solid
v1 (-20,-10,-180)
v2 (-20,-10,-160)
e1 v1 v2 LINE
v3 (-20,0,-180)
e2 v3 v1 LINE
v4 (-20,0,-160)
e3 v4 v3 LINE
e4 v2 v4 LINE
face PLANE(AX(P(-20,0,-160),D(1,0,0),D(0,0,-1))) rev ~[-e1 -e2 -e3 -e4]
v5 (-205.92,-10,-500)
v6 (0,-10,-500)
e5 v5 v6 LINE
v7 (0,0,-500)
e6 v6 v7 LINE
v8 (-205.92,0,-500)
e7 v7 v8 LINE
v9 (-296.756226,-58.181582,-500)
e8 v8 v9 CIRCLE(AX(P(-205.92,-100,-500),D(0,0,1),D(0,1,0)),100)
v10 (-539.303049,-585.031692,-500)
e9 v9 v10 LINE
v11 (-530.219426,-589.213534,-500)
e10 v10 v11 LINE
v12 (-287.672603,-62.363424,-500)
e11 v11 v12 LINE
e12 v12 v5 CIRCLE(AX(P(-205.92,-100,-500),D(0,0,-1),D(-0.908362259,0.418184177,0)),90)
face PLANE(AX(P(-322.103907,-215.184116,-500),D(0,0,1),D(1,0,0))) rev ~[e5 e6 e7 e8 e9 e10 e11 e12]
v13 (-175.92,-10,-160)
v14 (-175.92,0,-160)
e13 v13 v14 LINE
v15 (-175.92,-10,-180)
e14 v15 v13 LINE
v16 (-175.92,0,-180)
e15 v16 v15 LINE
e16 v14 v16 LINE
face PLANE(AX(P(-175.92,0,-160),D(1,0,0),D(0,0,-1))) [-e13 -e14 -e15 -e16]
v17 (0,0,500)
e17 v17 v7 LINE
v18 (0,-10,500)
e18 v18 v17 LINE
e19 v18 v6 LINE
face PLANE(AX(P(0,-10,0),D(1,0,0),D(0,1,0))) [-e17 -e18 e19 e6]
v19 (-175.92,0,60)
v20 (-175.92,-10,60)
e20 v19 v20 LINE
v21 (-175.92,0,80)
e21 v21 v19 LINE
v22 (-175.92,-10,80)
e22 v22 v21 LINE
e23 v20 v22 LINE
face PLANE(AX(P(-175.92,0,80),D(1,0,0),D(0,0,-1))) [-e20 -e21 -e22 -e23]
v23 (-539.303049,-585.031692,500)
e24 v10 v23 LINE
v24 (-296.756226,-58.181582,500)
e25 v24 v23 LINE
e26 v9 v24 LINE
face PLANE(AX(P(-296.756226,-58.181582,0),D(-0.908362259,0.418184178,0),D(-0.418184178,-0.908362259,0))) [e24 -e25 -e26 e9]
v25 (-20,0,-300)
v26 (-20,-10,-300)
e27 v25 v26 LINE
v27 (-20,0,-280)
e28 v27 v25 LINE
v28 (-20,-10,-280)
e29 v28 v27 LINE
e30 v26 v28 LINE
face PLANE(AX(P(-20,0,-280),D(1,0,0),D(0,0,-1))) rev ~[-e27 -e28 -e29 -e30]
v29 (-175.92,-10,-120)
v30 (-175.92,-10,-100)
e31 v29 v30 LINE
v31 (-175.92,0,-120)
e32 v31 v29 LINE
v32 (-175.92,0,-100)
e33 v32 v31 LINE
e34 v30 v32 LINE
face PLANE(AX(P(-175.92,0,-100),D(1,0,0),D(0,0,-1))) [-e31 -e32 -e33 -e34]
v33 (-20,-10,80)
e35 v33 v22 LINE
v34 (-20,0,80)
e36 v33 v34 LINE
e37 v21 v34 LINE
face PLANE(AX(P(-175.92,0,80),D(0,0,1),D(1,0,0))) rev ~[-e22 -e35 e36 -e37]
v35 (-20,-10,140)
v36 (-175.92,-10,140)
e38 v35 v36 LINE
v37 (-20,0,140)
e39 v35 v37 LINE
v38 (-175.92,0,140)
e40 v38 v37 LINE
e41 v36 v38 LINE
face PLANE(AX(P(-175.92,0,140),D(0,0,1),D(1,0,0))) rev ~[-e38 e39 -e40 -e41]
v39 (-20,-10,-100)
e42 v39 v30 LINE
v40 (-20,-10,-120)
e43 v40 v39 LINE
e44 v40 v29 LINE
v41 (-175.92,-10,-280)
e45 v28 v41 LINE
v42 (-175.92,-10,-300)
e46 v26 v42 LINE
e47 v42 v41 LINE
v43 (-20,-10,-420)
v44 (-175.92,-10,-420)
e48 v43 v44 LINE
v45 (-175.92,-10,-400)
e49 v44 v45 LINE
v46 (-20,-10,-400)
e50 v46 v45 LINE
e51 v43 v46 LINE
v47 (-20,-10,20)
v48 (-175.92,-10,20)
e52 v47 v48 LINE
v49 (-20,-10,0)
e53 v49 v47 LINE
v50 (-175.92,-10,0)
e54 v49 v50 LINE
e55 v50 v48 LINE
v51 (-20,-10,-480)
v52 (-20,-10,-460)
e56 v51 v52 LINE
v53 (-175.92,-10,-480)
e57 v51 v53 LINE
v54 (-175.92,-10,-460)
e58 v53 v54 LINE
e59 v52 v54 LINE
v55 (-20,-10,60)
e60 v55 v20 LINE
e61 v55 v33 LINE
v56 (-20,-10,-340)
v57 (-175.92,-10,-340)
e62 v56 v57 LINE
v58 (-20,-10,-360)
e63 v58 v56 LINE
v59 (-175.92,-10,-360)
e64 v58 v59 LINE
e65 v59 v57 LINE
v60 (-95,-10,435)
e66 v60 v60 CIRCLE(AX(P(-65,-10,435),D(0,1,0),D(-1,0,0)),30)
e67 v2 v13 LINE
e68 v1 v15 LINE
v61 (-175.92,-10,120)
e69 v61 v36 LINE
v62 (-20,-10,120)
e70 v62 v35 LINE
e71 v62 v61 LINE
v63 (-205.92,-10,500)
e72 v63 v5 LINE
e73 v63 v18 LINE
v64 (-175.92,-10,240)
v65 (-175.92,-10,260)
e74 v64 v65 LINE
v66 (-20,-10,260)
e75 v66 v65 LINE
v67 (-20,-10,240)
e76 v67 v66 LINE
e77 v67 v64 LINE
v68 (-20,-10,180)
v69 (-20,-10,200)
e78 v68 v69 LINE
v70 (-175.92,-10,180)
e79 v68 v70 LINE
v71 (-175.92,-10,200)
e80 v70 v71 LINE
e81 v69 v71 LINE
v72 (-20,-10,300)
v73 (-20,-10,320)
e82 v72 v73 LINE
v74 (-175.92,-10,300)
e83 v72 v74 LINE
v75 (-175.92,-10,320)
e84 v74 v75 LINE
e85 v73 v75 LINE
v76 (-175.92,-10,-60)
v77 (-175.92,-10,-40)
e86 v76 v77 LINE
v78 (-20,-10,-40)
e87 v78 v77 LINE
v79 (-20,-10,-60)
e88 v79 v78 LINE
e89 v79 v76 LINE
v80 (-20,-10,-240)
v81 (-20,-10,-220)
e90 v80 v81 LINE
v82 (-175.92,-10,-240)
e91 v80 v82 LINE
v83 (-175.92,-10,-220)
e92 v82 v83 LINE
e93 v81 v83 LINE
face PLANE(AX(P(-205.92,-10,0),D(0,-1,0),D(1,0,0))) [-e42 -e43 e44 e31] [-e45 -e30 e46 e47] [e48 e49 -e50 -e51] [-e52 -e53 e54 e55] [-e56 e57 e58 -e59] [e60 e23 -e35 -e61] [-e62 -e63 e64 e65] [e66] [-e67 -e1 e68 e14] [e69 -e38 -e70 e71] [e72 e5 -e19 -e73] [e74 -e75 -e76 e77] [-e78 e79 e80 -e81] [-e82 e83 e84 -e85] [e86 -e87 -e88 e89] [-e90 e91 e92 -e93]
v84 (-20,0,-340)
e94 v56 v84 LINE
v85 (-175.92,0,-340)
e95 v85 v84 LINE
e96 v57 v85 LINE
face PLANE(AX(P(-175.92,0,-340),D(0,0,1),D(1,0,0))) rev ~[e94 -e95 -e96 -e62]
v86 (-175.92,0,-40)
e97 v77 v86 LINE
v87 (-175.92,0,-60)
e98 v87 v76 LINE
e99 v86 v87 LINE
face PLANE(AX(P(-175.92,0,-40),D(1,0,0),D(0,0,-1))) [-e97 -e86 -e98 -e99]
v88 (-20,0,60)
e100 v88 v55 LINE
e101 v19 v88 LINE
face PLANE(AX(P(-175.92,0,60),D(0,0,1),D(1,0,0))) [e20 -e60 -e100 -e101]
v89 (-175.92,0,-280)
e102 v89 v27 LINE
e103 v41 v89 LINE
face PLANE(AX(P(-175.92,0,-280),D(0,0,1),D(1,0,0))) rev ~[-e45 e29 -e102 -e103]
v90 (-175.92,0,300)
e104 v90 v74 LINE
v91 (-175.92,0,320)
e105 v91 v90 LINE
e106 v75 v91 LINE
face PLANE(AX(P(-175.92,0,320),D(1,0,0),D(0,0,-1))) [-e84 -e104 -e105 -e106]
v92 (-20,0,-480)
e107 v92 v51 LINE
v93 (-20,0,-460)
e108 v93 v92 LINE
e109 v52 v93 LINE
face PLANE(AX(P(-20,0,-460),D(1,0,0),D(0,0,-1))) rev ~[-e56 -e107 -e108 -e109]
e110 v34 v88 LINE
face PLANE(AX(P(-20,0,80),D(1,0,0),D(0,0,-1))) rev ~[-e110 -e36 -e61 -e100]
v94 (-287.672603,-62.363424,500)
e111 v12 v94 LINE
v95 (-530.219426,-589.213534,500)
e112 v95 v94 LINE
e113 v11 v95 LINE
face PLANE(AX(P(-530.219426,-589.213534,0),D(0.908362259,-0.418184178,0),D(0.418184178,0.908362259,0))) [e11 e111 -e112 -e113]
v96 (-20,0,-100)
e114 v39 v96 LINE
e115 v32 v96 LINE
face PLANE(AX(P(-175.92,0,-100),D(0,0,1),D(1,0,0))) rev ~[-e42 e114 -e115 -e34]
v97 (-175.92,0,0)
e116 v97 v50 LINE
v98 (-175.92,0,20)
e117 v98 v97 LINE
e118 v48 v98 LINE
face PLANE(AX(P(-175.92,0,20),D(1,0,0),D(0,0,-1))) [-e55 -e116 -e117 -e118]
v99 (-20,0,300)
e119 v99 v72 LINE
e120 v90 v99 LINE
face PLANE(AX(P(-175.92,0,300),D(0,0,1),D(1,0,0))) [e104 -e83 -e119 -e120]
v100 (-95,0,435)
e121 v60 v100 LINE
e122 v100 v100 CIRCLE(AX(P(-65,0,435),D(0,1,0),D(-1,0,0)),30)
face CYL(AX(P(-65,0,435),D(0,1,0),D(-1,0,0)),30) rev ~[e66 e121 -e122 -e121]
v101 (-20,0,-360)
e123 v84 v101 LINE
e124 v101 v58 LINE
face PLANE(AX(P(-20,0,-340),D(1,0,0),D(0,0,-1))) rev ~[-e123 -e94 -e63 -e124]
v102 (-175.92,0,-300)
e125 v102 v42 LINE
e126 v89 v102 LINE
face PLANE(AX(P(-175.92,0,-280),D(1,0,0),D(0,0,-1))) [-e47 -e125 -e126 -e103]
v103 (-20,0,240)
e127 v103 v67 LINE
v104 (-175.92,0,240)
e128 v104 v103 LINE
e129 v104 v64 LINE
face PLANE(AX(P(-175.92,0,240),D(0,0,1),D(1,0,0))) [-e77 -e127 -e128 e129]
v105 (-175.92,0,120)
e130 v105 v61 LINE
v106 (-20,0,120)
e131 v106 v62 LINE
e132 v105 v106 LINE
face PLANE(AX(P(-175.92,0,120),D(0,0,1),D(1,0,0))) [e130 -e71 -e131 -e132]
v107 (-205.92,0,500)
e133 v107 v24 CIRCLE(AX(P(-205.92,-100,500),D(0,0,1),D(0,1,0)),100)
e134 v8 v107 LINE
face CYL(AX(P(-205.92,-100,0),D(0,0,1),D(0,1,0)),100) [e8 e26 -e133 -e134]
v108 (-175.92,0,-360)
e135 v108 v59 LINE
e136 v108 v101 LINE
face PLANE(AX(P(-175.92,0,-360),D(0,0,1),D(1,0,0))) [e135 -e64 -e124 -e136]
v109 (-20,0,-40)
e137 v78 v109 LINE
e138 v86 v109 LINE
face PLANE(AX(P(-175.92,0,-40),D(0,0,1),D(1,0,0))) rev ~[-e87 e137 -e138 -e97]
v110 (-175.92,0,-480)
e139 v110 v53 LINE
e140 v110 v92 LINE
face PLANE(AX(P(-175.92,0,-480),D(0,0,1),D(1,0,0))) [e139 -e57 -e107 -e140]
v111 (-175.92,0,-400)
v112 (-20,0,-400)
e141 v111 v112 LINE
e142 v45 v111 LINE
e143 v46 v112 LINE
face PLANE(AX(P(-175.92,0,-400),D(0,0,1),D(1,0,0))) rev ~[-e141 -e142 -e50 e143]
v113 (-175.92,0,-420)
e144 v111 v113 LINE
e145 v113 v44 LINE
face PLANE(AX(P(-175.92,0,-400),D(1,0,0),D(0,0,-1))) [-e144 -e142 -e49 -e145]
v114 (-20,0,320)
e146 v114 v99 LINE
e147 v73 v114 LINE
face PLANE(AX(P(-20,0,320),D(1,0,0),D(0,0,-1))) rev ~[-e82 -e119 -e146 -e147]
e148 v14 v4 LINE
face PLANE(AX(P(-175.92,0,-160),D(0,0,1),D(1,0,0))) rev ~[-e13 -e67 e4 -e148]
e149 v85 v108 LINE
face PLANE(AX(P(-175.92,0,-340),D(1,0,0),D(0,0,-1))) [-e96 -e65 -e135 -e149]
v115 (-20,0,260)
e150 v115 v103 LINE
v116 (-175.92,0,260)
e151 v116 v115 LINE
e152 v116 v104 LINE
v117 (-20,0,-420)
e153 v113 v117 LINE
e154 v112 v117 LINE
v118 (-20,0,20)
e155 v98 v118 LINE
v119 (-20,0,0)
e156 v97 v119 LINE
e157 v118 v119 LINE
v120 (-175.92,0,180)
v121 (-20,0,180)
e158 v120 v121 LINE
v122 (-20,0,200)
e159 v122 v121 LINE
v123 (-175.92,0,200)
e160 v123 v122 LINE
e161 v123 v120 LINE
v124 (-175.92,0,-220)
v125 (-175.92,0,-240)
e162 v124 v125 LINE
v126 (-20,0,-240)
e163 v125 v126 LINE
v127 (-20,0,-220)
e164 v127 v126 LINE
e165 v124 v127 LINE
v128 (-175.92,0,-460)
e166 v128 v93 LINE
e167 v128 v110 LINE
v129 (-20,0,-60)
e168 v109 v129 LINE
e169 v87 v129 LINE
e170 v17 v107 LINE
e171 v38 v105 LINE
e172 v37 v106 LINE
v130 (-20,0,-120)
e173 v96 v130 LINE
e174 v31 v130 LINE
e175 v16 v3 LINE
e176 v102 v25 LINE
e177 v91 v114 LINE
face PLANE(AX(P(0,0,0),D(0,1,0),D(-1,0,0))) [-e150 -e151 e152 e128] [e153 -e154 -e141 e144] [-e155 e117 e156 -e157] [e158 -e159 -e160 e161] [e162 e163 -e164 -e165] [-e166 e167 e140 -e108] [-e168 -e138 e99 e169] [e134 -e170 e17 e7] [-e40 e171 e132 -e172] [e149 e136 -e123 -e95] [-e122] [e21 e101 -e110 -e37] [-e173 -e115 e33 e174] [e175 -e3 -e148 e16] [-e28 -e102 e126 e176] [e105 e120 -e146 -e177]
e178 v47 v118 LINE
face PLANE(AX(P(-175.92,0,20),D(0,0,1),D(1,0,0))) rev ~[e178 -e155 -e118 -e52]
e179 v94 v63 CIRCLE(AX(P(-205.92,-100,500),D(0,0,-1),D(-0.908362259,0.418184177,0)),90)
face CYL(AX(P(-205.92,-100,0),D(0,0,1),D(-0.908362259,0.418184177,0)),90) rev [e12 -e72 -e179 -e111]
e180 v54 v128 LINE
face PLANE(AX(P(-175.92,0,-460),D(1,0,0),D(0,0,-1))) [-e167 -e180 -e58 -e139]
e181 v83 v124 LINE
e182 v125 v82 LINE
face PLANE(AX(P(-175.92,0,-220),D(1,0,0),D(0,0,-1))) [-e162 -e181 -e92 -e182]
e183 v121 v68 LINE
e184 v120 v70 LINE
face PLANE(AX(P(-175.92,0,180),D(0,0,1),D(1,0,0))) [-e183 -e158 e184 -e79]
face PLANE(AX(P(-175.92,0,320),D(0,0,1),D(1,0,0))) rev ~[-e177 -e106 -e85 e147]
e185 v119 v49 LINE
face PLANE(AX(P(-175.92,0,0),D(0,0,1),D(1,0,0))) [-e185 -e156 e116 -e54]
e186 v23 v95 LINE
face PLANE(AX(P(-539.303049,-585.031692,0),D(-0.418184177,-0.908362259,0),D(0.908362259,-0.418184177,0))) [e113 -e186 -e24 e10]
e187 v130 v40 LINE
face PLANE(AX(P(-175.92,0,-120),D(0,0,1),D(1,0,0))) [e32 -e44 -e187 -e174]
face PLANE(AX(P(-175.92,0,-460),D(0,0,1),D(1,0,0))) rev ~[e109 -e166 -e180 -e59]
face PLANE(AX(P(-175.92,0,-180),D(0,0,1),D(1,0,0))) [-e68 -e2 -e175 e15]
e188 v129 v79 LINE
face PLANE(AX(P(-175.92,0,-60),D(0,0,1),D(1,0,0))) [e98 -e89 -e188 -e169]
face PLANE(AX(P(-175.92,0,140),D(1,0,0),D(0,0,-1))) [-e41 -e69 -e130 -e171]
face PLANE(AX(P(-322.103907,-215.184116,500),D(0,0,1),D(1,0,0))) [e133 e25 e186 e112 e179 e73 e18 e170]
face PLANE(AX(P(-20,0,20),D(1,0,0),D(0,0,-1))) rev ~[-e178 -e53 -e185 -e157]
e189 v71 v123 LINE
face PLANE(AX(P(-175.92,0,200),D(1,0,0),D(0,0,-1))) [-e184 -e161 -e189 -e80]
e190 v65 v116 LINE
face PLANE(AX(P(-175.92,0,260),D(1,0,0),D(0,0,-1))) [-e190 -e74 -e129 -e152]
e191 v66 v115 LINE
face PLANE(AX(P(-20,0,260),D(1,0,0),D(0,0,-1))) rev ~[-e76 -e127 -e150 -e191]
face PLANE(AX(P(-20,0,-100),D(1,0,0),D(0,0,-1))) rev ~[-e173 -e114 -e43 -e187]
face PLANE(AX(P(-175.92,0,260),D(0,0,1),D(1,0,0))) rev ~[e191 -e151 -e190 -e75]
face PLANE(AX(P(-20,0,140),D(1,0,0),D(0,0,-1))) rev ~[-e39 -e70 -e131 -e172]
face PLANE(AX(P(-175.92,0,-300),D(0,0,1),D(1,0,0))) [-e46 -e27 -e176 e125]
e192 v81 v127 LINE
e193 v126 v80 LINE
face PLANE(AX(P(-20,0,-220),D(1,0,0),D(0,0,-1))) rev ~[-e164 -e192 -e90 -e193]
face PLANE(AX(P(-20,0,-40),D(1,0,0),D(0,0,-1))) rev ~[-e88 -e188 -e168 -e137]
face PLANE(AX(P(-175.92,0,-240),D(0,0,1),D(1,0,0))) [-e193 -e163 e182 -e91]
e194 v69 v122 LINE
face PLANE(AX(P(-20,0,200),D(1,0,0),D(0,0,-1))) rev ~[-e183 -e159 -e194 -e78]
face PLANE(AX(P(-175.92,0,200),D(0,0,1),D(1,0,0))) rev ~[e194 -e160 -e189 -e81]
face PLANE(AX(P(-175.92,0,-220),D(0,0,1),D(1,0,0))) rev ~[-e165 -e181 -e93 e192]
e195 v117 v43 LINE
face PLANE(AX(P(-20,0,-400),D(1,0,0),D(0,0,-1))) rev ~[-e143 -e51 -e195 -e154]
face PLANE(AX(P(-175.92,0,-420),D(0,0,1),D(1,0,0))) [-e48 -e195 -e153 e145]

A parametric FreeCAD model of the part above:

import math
import FreeCAD as App
import Part
import Sketcher
from FreeCAD import Vector
Q = App.Units.Quantity

doc = App.newDocument("Part")
body = doc.addObject("PartDesign::Body", "Body")

# Sketch on XY plane
sketch1 = body.newObject("Sketcher::SketchObject", "Sketch")
sketch1.AttachmentSupport = (doc.getObject("XY_Plane"), [""])
sketch1.MapMode = "FlatFace"
sketch1.addGeometry(Part.LineSegment(Vector(0, 0, 0), Vector(-205.92, 0, 0)), False)
sketch1.addGeometry(Part.ArcOfCircle(Part.Circle(Vector(-205.92, -100, 0), Vector(0, 0, 1), 100), math.radians(90), math.radians(155.28)), False)
sketch1.addGeometry(Part.LineSegment(Vector(-296.756226, -58.181582, 0), Vector(-539.303049, -585.031692, 0)), False)
sketch1.addGeometry(Part.LineSegment(Vector(-539.303049, -585.031692, 0), Vector(-530.219426, -589.213534, 0)), False)
sketch1.addGeometry(Part.LineSegment(Vector(-530.219426, -589.213534, 0), Vector(-287.672603, -62.363424, 0)), False)
sketch1.addGeometry(Part.ArcOfCircle(Part.Circle(Vector(-205.92, -100, 0), Vector(0, 0, 1), 90), math.radians(90), math.radians(155.28)), False)
sketch1.addGeometry(Part.LineSegment(Vector(-205.92, -10, 0), Vector(0, -10, 0)), False)
sketch1.addGeometry(Part.LineSegment(Vector(0, -10, 0), Vector(0, 0, 0)), False)
sketch1.addConstraint(Sketcher.Constraint("Tangent", 0, 2, 1, 1))
sketch1.addConstraint(Sketcher.Constraint("Tangent", 1, 2, 2, 1))
sketch1.addConstraint(Sketcher.Constraint("Coincident", 2, 2, 3, 1))
sketch1.addConstraint(Sketcher.Constraint("Coincident", 3, 2, 4, 1))
sketch1.addConstraint(Sketcher.Constraint("Tangent", 4, 2, 5, 2))
sketch1.addConstraint(Sketcher.Constraint("Tangent", 5, 1, 6, 1))
sketch1.addConstraint(Sketcher.Constraint("Coincident", 6, 2, 7, 1))
sketch1.addConstraint(Sketcher.Constraint("Coincident", 7, 2, 0, 1))
sketch1.addConstraint(Sketcher.Constraint("Horizontal", 0))
sketch1.addConstraint(Sketcher.Constraint("Horizontal", 6))
sketch1.addConstraint(Sketcher.Constraint("Vertical", 7))
sketch1.addConstraint(Sketcher.Constraint("Coincident", 7, 2, -1, 1))
sketch1.addConstraint(Sketcher.Constraint("Coincident", 5, 3, 1, 3))
sketch1.addConstraint(Sketcher.Constraint("Perpendicular", 2, 3))
sketch1.addConstraint(Sketcher.Constraint("Perpendicular", 3, 4))
sketch1.addConstraint(Sketcher.Constraint("Radius", 1, Q("100 mm")))
sketch1.addConstraint(Sketcher.Constraint("Radius", 5, Q("90 mm")))
sketch1.addConstraint(Sketcher.Constraint("Distance", 2, Q("580 mm")))
sketch1.addConstraint(Sketcher.Constraint("DistanceX", 0, 2, 0, 1, Q("205.92 mm")))
sketch1.addConstraint(Sketcher.Constraint("Angle", 2, Q("-114.72 deg")))
pad1 = body.newObject("PartDesign::Pad", "Pad")
pad1.Profile = sketch1
pad1.Length = 1000
pad1.Midplane = True

# Sketch on XZ plane
sketch2 = body.newObject("Sketcher::SketchObject", "Sketch001")
sketch2.AttachmentSupport = (doc.getObject("XZ_Plane"), [""])
sketch2.MapMode = "FlatFace"
sketch2.addGeometry(Part.LineSegment(Vector(-175.92, -480, 0), Vector(-175.92, -460, 0)), False)
sketch2.addGeometry(Part.LineSegment(Vector(-175.92, -460, 0), Vector(-20, -460, 0)), False)
sketch2.addGeometry(Part.LineSegment(Vector(-20, -460, 0), Vector(-20, -480, 0)), False)
sketch2.addGeometry(Part.LineSegment(Vector(-20, -480, 0), Vector(-175.92, -480, 0)), False)
sketch2.addConstraint(Sketcher.Constraint("Coincident", 0, 2, 1, 1))
sketch2.addConstraint(Sketcher.Constraint("Coincident", 1, 2, 2, 1))
sketch2.addConstraint(Sketcher.Constraint("Coincident", 2, 2, 3, 1))
sketch2.addConstraint(Sketcher.Constraint("Coincident", 3, 2, 0, 1))
sketch2.addConstraint(Sketcher.Constraint("Vertical", 0))
sketch2.addConstraint(Sketcher.Constraint("Horizontal", 1))
sketch2.addConstraint(Sketcher.Constraint("Vertical", 2))
sketch2.addConstraint(Sketcher.Constraint("Horizontal", 3))
sketch2.addConstraint(Sketcher.Constraint("DistanceY", 0, 1, 0, 2, Q("20 mm")))
sketch2.addConstraint(Sketcher.Constraint("DistanceY", 0, 2, -1, 1, Q("460 mm")))
sketch2.addConstraint(Sketcher.Constraint("DistanceX", 1, 2, -1, 1, Q("20 mm")))
sketch2.addConstraint(Sketcher.Constraint("DistanceX", 1, 1, 1, 2, Q("155.92 mm")))
pocket1 = body.newObject("PartDesign::Pocket", "Pocket")
pocket1.Profile = sketch2
pocket1.Length = 452
pocket1.Midplane = True
doc.recompute()

linearpattern = body.newObject("PartDesign::LinearPattern", "LinearPattern")
linearpattern.Originals = [pocket1]
linearpattern.Direction = (doc.getObject("Z_Axis"), [""])
linearpattern.Mode = "offset"
linearpattern.Offset = 60
linearpattern.Occurrences = 14
body.Tip = linearpattern

# Sketch on XZ plane
sketch3 = body.newObject("Sketcher::SketchObject", "Sketch002")
sketch3.AttachmentSupport = (doc.getObject("XZ_Plane"), [""])
sketch3.MapMode = "FlatFace"
sketch3.addGeometry(Part.Circle(Vector(-65, 435, 0), Vector(0, 0, 1), 30), False)
sketch3.addConstraint(Sketcher.Constraint("Diameter", 0, Q("60 mm")))
sketch3.addConstraint(Sketcher.Constraint("DistanceX", 0, 3, -1, 1, Q("65 mm")))
sketch3.addConstraint(Sketcher.Constraint("DistanceY", -1, 1, 0, 3, Q("435 mm")))
pocket2 = body.newObject("PartDesign::Pocket", "Pocket001")
pocket2.Profile = sketch3
pocket2.Length = 452
pocket2.Midplane = True

doc.recompute()
